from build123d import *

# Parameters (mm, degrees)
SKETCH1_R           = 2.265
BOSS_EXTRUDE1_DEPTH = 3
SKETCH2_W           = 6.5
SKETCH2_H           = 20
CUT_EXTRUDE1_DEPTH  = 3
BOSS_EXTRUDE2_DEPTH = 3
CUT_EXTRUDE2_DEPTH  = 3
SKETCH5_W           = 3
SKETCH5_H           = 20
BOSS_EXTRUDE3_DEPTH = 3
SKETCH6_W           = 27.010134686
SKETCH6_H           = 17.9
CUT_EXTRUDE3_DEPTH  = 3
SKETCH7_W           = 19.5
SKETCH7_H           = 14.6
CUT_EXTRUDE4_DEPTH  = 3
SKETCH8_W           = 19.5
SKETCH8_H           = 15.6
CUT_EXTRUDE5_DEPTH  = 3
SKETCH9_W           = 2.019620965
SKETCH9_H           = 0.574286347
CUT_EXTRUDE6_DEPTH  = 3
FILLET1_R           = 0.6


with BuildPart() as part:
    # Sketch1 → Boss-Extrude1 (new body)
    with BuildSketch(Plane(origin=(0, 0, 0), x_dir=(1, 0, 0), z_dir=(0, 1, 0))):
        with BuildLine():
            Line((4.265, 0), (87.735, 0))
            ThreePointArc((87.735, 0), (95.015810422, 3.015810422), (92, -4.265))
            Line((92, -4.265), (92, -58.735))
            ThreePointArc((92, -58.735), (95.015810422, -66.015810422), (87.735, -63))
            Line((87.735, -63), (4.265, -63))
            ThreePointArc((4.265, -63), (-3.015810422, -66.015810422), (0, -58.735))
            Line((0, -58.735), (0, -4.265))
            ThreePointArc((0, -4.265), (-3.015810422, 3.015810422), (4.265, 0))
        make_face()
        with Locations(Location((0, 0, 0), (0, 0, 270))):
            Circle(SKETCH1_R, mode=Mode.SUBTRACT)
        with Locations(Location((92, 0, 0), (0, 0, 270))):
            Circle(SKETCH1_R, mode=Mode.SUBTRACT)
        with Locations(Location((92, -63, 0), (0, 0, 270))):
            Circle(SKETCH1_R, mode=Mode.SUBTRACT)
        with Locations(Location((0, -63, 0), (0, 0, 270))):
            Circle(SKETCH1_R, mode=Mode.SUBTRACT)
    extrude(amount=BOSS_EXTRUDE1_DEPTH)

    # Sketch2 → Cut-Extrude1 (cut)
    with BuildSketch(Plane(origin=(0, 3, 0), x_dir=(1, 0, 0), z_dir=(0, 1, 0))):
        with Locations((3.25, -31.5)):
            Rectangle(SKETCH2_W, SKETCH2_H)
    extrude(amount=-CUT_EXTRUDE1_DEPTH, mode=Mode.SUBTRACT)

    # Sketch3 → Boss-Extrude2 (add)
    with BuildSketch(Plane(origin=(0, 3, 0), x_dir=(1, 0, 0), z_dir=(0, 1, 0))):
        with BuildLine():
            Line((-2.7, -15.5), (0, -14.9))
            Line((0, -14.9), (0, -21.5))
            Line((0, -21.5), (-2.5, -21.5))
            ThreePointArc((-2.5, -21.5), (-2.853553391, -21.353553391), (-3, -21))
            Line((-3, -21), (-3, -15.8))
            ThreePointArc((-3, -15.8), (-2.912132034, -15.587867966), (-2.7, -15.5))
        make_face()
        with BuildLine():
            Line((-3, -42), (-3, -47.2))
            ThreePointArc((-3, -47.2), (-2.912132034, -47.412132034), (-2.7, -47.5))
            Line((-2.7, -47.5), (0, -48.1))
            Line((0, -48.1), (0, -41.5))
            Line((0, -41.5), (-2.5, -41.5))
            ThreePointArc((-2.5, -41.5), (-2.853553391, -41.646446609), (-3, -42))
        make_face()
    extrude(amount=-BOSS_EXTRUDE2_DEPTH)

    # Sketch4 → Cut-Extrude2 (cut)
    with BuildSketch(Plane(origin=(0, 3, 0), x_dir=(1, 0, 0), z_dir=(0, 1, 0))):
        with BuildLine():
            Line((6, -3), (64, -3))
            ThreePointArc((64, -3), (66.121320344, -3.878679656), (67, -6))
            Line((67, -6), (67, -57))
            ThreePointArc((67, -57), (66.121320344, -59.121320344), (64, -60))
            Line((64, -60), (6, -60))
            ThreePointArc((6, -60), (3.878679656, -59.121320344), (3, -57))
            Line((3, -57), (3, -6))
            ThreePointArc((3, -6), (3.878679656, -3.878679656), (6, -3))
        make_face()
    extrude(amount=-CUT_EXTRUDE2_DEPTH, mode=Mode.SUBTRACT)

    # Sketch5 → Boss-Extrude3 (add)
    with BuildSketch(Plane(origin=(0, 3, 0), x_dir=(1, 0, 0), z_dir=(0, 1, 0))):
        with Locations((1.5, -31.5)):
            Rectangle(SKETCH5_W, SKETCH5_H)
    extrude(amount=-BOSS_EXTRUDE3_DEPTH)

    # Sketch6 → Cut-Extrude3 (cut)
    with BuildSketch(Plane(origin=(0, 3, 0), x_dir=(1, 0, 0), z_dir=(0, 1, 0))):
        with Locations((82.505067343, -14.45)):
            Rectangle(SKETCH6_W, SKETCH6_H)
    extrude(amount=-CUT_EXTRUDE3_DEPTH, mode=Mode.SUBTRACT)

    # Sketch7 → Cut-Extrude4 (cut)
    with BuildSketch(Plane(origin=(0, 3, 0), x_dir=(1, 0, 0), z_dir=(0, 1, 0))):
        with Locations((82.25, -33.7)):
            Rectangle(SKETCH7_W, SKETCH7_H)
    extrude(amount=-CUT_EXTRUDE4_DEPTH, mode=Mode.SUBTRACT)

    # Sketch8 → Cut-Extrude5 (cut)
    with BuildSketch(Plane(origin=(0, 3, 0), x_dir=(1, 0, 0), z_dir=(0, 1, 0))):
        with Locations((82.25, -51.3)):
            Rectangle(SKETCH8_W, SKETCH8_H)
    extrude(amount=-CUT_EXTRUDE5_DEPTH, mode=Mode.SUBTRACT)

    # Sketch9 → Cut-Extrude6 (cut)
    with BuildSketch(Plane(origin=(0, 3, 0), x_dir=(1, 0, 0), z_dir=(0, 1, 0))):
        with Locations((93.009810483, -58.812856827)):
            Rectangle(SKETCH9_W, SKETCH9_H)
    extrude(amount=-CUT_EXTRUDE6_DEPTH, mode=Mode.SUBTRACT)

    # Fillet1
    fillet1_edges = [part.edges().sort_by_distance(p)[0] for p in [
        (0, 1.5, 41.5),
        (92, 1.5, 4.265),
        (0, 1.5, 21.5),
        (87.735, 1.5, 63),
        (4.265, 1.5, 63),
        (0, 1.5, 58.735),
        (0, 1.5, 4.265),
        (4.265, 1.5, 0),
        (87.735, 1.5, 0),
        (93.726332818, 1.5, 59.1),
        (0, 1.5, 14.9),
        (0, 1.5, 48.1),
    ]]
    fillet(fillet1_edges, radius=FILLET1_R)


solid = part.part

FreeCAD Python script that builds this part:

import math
import FreeCAD as App
import Part
import Sketcher
from FreeCAD import Vector
Q = App.Units.Quantity


def edges_at(feature, points):
    """Names of the edges that pass closest to the given points."""
    edges = feature.Shape.Edges
    near = lambda p: min(range(len(edges)), key=lambda i: edges[i].distToShape(Part.Vertex(*p))[0])
    return sorted({f"Edge{near(p) + 1}" for p in points})

doc = App.newDocument("Part")
body = doc.addObject("PartDesign::Body", "Body")

# Sketch on XZ plane
sketch1 = body.newObject("Sketcher::SketchObject", "Sketch")
sketch1.AttachmentSupport = (doc.getObject("XZ_Plane"), [""])
sketch1.MapMode = "FlatFace"
sketch1.addGeometry(Part.LineSegment(Vector(87.735, 0, 0), Vector(4.265, 0, 0)), False)
sketch1.addGeometry(Part.ArcOfCircle(Part.Circle(Vector(0, 0, 0), Vector(0, 0, 1), 4.265), math.radians(90), math.radians(360)), False)
sketch1.addGeometry(Part.LineSegment(Vector(0, 4.265, 0), Vector(0, 58.735, 0)), False)
sketch1.addGeometry(Part.ArcOfCircle(Part.Circle(Vector(0, 63, 0), Vector(0, 0, 1), 4.265), math.radians(0), math.radians(270)), False)
sketch1.addGeometry(Part.LineSegment(Vector(4.265, 63, 0), Vector(87.735, 63, 0)), False)
sketch1.addGeometry(Part.ArcOfCircle(Part.Circle(Vector(92, 63, 0), Vector(0, 0, 1), 4.265), math.radians(-90), math.radians(180)), False)
sketch1.addGeometry(Part.LineSegment(Vector(92, 58.735, 0), Vector(92, 4.265, 0)), False)
sketch1.addGeometry(Part.ArcOfCircle(Part.Circle(Vector(92, 0, 0), Vector(0, 0, 1), 4.265), math.radians(180), math.radians(450)), False)
sketch1.addGeometry(Part.Circle(Vector(92, 63, 0), Vector(0, 0, 1), 2.265), False)
sketch1.addGeometry(Part.Circle(Vector(0, 63, 0), Vector(0, 0, 1), 2.265), False)
sketch1.addGeometry(Part.Circle(Vector(92, 0, 0), Vector(0, 0, 1), 2.265), False)
sketch1.addGeometry(Part.Circle(Vector(0, 0, 0), Vector(0, 0, 1), 2.265), False)
sketch1.addConstraint(Sketcher.Constraint("Coincident", 0, 2, 1, 2))
sketch1.addConstraint(Sketcher.Constraint("Coincident", 1, 1, 2, 1))
sketch1.addConstraint(Sketcher.Constraint("Coincident", 2, 2, 3, 2))
sketch1.addConstraint(Sketcher.Constraint("Coincident", 3, 1, 4, 1))
sketch1.addConstraint(Sketcher.Constraint("Coincident", 4, 2, 5, 2))
sketch1.addConstraint(Sketcher.Constraint("Coincident", 5, 1, 6, 1))
sketch1.addConstraint(Sketcher.Constraint("Coincident", 6, 2, 7, 2))
sketch1.addConstraint(Sketcher.Constraint("Coincident", 7, 1, 0, 1))
sketch1.addConstraint(Sketcher.Constraint("Horizontal", 0))
sketch1.addConstraint(Sketcher.Constraint("Vertical", 2))
sketch1.addConstraint(Sketcher.Constraint("Horizontal", 4))
sketch1.addConstraint(Sketcher.Constraint("Vertical", 6))
sketch1.addConstraint(Sketcher.Constraint("Coincident", 1, 3, -1, 1))
sketch1.addConstraint(Sketcher.Constraint("Coincident", 11, 3, -1, 1))
sketch1.addConstraint(Sketcher.Constraint("Coincident", 8, 3, 5, 3))
sketch1.addConstraint(Sketcher.Constraint("Coincident", 9, 3, 3, 3))
sketch1.addConstraint(Sketcher.Constraint("Coincident", 10, 3, 7, 3))
sketch1.addConstraint(Sketcher.Constraint("Equal", 1, 3))
sketch1.addConstraint(Sketcher.Constraint("Equal", 3, 5))
sketch1.addConstraint(Sketcher.Constraint("Equal", 5, 7))
sketch1.addConstraint(Sketcher.Constraint("Equal", 8, 9))
sketch1.addConstraint(Sketcher.Constraint("Equal", 9, 10))
sketch1.addConstraint(Sketcher.Constraint("Equal", 10, 11))
sketch1.addConstraint(Sketcher.Constraint("PointOnObject", 3, 3, -2))
sketch1.addConstraint(Sketcher.Constraint("PointOnObject", 7, 3, -1))
sketch1.addConstraint(Sketcher.Constraint("PointOnObject", 0, 2, -1))
sketch1.addConstraint(Sketcher.Constraint("PointOnObject", 1, 1, -2))
sketch1.addConstraint(Sketcher.Constraint("Horizontal", 3, 3, 5, 3))
sketch1.addConstraint(Sketcher.Constraint("Horizontal", 9, 3, 3, 1))
sketch1.addConstraint(Sketcher.Constraint("Vertical", 5, 3, 7, 3))
sketch1.addConstraint(Sketcher.Constraint("Vertical", 10, 3, 5, 1))
sketch1.addConstraint(Sketcher.Constraint("Diameter", 8, Q("4.53 mm")))
sketch1.addConstraint(Sketcher.Constraint("DistanceY", -1, 1, 3, 3, Q("63 mm")))
sketch1.addConstraint(Sketcher.Constraint("DistanceX", -1, 1, 5, 3, Q("92 mm")))
sketch1.addConstraint(Sketcher.Constraint("Radius", 1, Q("4.265 mm")))
pad1 = body.newObject("PartDesign::Pad", "Pad")
pad1.Profile = sketch1
pad1.Length = 3
pad1.Reversed = True

# Sketch on XZ plane
sketch2 = body.newObject("Sketcher::SketchObject", "Sketch001")
sketch2.AttachmentSupport = (doc.getObject("XZ_Plane"), [""])
sketch2.MapMode = "FlatFace"
sketch2.AttachmentOffset = App.Placement(Vector(0, 0, -3), App.Rotation())
sketch2.addGeometry(Part.LineSegment(Vector(0, 21.5, 0), Vector(0, 41.5, 0)), False)
sketch2.addGeometry(Part.LineSegment(Vector(0, 41.5, 0), Vector(6.5, 41.5, 0)), False)
sketch2.addGeometry(Part.LineSegment(Vector(6.5, 41.5, 0), Vector(6.5, 21.5, 0)), False)
sketch2.addGeometry(Part.LineSegment(Vector(6.5, 21.5, 0), Vector(0, 21.5, 0)), False)
sketch2.addConstraint(Sketcher.Constraint("Coincident", 0, 2, 1, 1))
sketch2.addConstraint(Sketcher.Constraint("Coincident", 1, 2, 2, 1))
sketch2.addConstraint(Sketcher.Constraint("Coincident", 2, 2, 3, 1))
sketch2.addConstraint(Sketcher.Constraint("Coincident", 3, 2, 0, 1))
sketch2.addConstraint(Sketcher.Constraint("Vertical", 0))
sketch2.addConstraint(Sketcher.Constraint("Horizontal", 1))
sketch2.addConstraint(Sketcher.Constraint("Vertical", 2))
sketch2.addConstraint(Sketcher.Constraint("Horizontal", 3))
sketch2.addConstraint(Sketcher.Constraint("PointOnObject", 0, 2, -2))
sketch2.addConstraint(Sketcher.Constraint("DistanceY", 0, 1, 0, 2, Q("20 mm")))
sketch2.addConstraint(Sketcher.Constraint("DistanceX", 1, 1, 1, 2, Q("6.5 mm")))
sketch2.addConstraint(Sketcher.Constraint("DistanceY", -1, 1, 0, 2, Q("41.5 mm")))
pocket1 = body.newObject("PartDesign::Pocket", "Pocket")
pocket1.Profile = sketch2
pocket1.Length = 3
pocket1.Reversed = True

# Sketch on XZ plane
sketch3 = body.newObject("Sketcher::SketchObject", "Sketch002")
sketch3.AttachmentSupport = (doc.getObject("XZ_Plane"), [""])
sketch3.MapMode = "FlatFace"
sketch3.AttachmentOffset = App.Placement(Vector(0, 0, -3), App.Rotation())
sketch3.addGeometry(Part.LineSegment(Vector(0, 14.9, 0), Vector(-2.7, 15.5, 0)), False)
sketch3.addGeometry(Part.ArcOfCircle(Part.Circle(Vector(-2.7, 15.8, 0), Vector(0, 0, 1), 0.3), math.radians(-180), math.radians(-90)), False)
sketch3.addGeometry(Part.LineSegment(Vector(-3, 15.8, 0), Vector(-3, 21, 0)), False)
sketch3.addGeometry(Part.ArcOfCircle(Part.Circle(Vector(-2.5, 21, 0), Vector(0, 0, 1), 0.5), math.radians(90), math.radians(180)), False)
sketch3.addGeometry(Part.LineSegment(Vector(-2.5, 21.5, 0), Vector(0, 21.5, 0)), False)
sketch3.addGeometry(Part.LineSegment(Vector(0, 21.5, 0), Vector(0, 14.9, 0)), False)
sketch3.addGeometry(Part.LineSegment(Vector(-3, 42, 0), Vector(-3, 47.2, 0)), False)
sketch3.addGeometry(Part.ArcOfCircle(Part.Circle(Vector(-2.7, 47.2, 0), Vector(0, 0, 1), 0.3), math.radians(90), math.radians(180)), False)
sketch3.addGeometry(Part.LineSegment(Vector(-2.7, 47.5, 0), Vector(0, 48.1, 0)), False)
sketch3.addGeometry(Part.LineSegment(Vector(0, 48.1, 0), Vector(0, 41.5, 0)), False)
sketch3.addGeometry(Part.LineSegment(Vector(0, 41.5, 0), Vector(-2.5, 41.5, 0)), False)
sketch3.addGeometry(Part.ArcOfCircle(Part.Circle(Vector(-2.5, 42, 0), Vector(0, 0, 1), 0.5), math.radians(180), math.radians(270)), False)
sketch3.addConstraint(Sketcher.Constraint("Coincident", 0, 2, 1, 2))
sketch3.addConstraint(Sketcher.Constraint("Tangent", 1, 1, 2, 1))
sketch3.addConstraint(Sketcher.Constraint("Tangent", 2, 2, 3, 2))
sketch3.addConstraint(Sketcher.Constraint("Tangent", 3, 1, 4, 1))
sketch3.addConstraint(Sketcher.Constraint("Coincident", 4, 2, 5, 1))
sketch3.addConstraint(Sketcher.Constraint("Coincident", 5, 2, 0, 1))
sketch3.addConstraint(Sketcher.Constraint("Tangent", 6, 2, 7, 2))
sketch3.addConstraint(Sketcher.Constraint("Coincident", 7, 1, 8, 1))
sketch3.addConstraint(Sketcher.Constraint("Coincident", 8, 2, 9, 1))
sketch3.addConstraint(Sketcher.Constraint("Coincident", 9, 2, 10, 1))
sketch3.addConstraint(Sketcher.Constraint("Tangent", 10, 2, 11, 2))
sketch3.addConstraint(Sketcher.Constraint("Tangent", 11, 1, 6, 1))
sketch3.addConstraint(Sketcher.Constraint("Vertical", 2))
sketch3.addConstraint(Sketcher.Constraint("Horizontal", 4))
sketch3.addConstraint(Sketcher.Constraint("Vertical", 5))
sketch3.addConstraint(Sketcher.Constraint("Vertical", 6))
sketch3.addConstraint(Sketcher.Constraint("Vertical", 9))
sketch3.addConstraint(Sketcher.Constraint("Horizontal", 10))
sketch3.addConstraint(Sketcher.Constraint("Equal", 1, 7))
sketch3.addConstraint(Sketcher.Constraint("Equal", 3, 11))
sketch3.addConstraint(Sketcher.Constraint("PointOnObject", 4, 2, -2))
sketch3.addConstraint(Sketcher.Constraint("PointOnObject", 8, 2, -2))
sketch3.addConstraint(Sketcher.Constraint("Vertical", 1, 3, 7, 3))
sketch3.addConstraint(Sketcher.Constraint("Vertical", 7, 3, 0, 2))
sketch3.addConstraint(Sketcher.Constraint("Vertical", 0, 2, 7, 1))
sketch3.addConstraint(Sketcher.Constraint("Equal", 2, 6))
sketch3.addConstraint(Sketcher.Constraint("Equal", 5, 9))
sketch3.addConstraint(Sketcher.Constraint("Radius", 1, Q("0.3 mm")))
sketch3.addConstraint(Sketcher.Constraint("Radius", 3, Q("0.5 mm")))
sketch3.addConstraint(Sketcher.Constraint("DistanceX", 4, 1, 4, 2, Q("2.5 mm")))
sketch3.addConstraint(Sketcher.Constraint("DistanceY", 2, 1, 2, 2, Q("5.2 mm")))
sketch3.addConstraint(Sketcher.Constraint("DistanceY", 5, 2, 5, 1, Q("6.6 mm")))
sketch3.addConstraint(Sketcher.Constraint("DistanceY", -1, 1, 3, 3, Q("21 mm")))
sketch3.addConstraint(Sketcher.Constraint("DistanceY", -1, 1, 11, 3, Q("42 mm")))
pad2 = body.newObject("PartDesign::Pad", "Pad001")
pad2.Profile = sketch3
pad2.Length = 3

# Sketch on XZ plane
sketch4 = body.newObject("Sketcher::SketchObject", "Sketch003")
sketch4.AttachmentSupport = (doc.getObject("XZ_Plane"), [""])
sketch4.MapMode = "FlatFace"
sketch4.AttachmentOffset = App.Placement(Vector(0, 0, -3), App.Rotation())
sketch4.addGeometry(Part.LineSegment(Vector(64, 3, 0), Vector(6, 3, 0)), False)
sketch4.addGeometry(Part.ArcOfCircle(Part.Circle(Vector(6, 6, 0), Vector(0, 0, 1), 3), math.radians(180), math.radians(270)), False)
sketch4.addGeometry(Part.LineSegment(Vector(3, 6, 0), Vector(3, 57, 0)), False)
sketch4.addGeometry(Part.ArcOfCircle(Part.Circle(Vector(6, 57, 0), Vector(0, 0, 1), 3), math.radians(90), math.radians(180)), False)
sketch4.addGeometry(Part.LineSegment(Vector(6, 60, 0), Vector(64, 60, 0)), False)
sketch4.addGeometry(Part.ArcOfCircle(Part.Circle(Vector(64, 57, 0), Vector(0, 0, 1), 3), math.radians(0), math.radians(90)), False)
sketch4.addGeometry(Part.LineSegment(Vector(67, 57, 0), Vector(67, 6, 0)), False)
sketch4.addGeometry(Part.ArcOfCircle(Part.Circle(Vector(64, 6, 0), Vector(0, 0, 1), 3), math.radians(-90), math.radians(0)), False)
sketch4.addConstraint(Sketcher.Constraint("Tangent", 0, 2, 1, 2))
sketch4.addConstraint(Sketcher.Constraint("Tangent", 1, 1, 2, 1))
sketch4.addConstraint(Sketcher.Constraint("Tangent", 2, 2, 3, 2))
sketch4.addConstraint(Sketcher.Constraint("Tangent", 3, 1, 4, 1))
sketch4.addConstraint(Sketcher.Constraint("Tangent", 4, 2, 5, 2))
sketch4.addConstraint(Sketcher.Constraint("Tangent", 5, 1, 6, 1))
sketch4.addConstraint(Sketcher.Constraint("Tangent", 6, 2, 7, 2))
sketch4.addConstraint(Sketcher.Constraint("Tangent", 7, 1, 0, 1))
sketch4.addConstraint(Sketcher.Constraint("Horizontal", 0))
sketch4.addConstraint(Sketcher.Constraint("Vertical", 2))
sketch4.addConstraint(Sketcher.Constraint("Horizontal", 4))
sketch4.addConstraint(Sketcher.Constraint("Vertical", 6))
sketch4.addConstraint(Sketcher.Constraint("Equal", 1, 3))
sketch4.addConstraint(Sketcher.Constraint("Equal", 3, 5))
sketch4.addConstraint(Sketcher.Constraint("Equal", 5, 7))
sketch4.addConstraint(Sketcher.Constraint("Radius", 1, Q("3 mm")))
sketch4.addConstraint(Sketcher.Constraint("DistanceX", 0, 2, 0, 1, Q("58 mm")))
sketch4.addConstraint(Sketcher.Constraint("DistanceY", 2, 1, 2, 2, Q("51 mm")))
sketch4.addConstraint(Sketcher.Constraint("DistanceX", -1, 1, 1, 3, Q("6 mm")))
sketch4.addConstraint(Sketcher.Constraint("DistanceY", -1, 1, 1, 3, Q("6 mm")))
pocket2 = body.newObject("PartDesign::Pocket", "Pocket001")
pocket2.Profile = sketch4
pocket2.Length = 3
pocket2.Reversed = True

# Sketch on XZ plane
sketch5 = body.newObject("Sketcher::SketchObject", "Sketch004")
sketch5.AttachmentSupport = (doc.getObject("XZ_Plane"), [""])
sketch5.MapMode = "FlatFace"
sketch5.AttachmentOffset = App.Placement(Vector(0, 0, -3), App.Rotation())
sketch5.addGeometry(Part.LineSegment(Vector(0, 21.5, 0), Vector(0, 41.5, 0)), False)
sketch5.addGeometry(Part.LineSegment(Vector(0, 41.5, 0), Vector(3, 41.5, 0)), False)
sketch5.addGeometry(Part.LineSegment(Vector(3, 41.5, 0), Vector(3, 21.5, 0)), False)
sketch5.addGeometry(Part.LineSegment(Vector(3, 21.5, 0), Vector(0, 21.5, 0)), False)
sketch5.addConstraint(Sketcher.Constraint("Coincident", 0, 2, 1, 1))
sketch5.addConstraint(Sketcher.Constraint("Coincident", 1, 2, 2, 1))
sketch5.addConstraint(Sketcher.Constraint("Coincident", 2, 2, 3, 1))
sketch5.addConstraint(Sketcher.Constraint("Coincident", 3, 2, 0, 1))
sketch5.addConstraint(Sketcher.Constraint("Vertical", 0))
sketch5.addConstraint(Sketcher.Constraint("Horizontal", 1))
sketch5.addConstraint(Sketcher.Constraint("Vertical", 2))
sketch5.addConstraint(Sketcher.Constraint("Horizontal", 3))
sketch5.addConstraint(Sketcher.Constraint("PointOnObject", 0, 2, -2))
sketch5.addConstraint(Sketcher.Constraint("DistanceX", 1, 1, 1, 2, Q("3 mm")))
sketch5.addConstraint(Sketcher.Constraint("DistanceY", 0, 1, 0, 2, Q("20 mm")))
sketch5.addConstraint(Sketcher.Constraint("DistanceY", -1, 1, 0, 2, Q("41.5 mm")))
pad3 = body.newObject("PartDesign::Pad", "Pad002")
pad3.Profile = sketch5
pad3.Length = 3

# Sketch on XZ plane
sketch6 = body.newObject("Sketcher::SketchObject", "Sketch005")
sketch6.AttachmentSupport = (doc.getObject("XZ_Plane"), [""])
sketch6.MapMode = "FlatFace"
sketch6.AttachmentOffset = App.Placement(Vector(0, 0, -3), App.Rotation())
sketch6.addGeometry(Part.LineSegment(Vector(69, 5.5, 0), Vector(69, 23.4, 0)), False)
sketch6.addGeometry(Part.LineSegment(Vector(69, 23.4, 0), Vector(96.010135, 23.4, 0)), False)
sketch6.addGeometry(Part.LineSegment(Vector(96.010135, 23.4, 0), Vector(96.010135, 5.5, 0)), False)
sketch6.addGeometry(Part.LineSegment(Vector(96.010135, 5.5, 0), Vector(69, 5.5, 0)), False)
sketch6.addConstraint(Sketcher.Constraint("Coincident", 0, 2, 1, 1))
sketch6.addConstraint(Sketcher.Constraint("Coincident", 1, 2, 2, 1))
sketch6.addConstraint(Sketcher.Constraint("Coincident", 2, 2, 3, 1))
sketch6.addConstraint(Sketcher.Constraint("Coincident", 3, 2, 0, 1))
sketch6.addConstraint(Sketcher.Constraint("Vertical", 0))
sketch6.addConstraint(Sketcher.Constraint("Horizontal", 1))
sketch6.addConstraint(Sketcher.Constraint("Vertical", 2))
sketch6.addConstraint(Sketcher.Constraint("Horizontal", 3))
sketch6.addConstraint(Sketcher.Constraint("DistanceY", 0, 1, 0, 2, Q("17.9 mm")))
sketch6.addConstraint(Sketcher.Constraint("DistanceX", -1, 1, 0, 2, Q("69 mm")))
sketch6.addConstraint(Sketcher.Constraint("DistanceY", -1, 1, 0, 2, Q("23.4 mm")))
sketch6.addConstraint(Sketcher.Constraint("DistanceX", 1, 1, 1, 2, Q("27.010135 mm")))
pocket3 = body.newObject("PartDesign::Pocket", "Pocket002")
pocket3.Profile = sketch6
pocket3.Length = 3
pocket3.Reversed = True

# Sketch on XZ plane
sketch7 = body.newObject("Sketcher::SketchObject", "Sketch006")
sketch7.AttachmentSupport = (doc.getObject("XZ_Plane"), [""])
sketch7.MapMode = "FlatFace"
sketch7.AttachmentOffset = App.Placement(Vector(0, 0, -3), App.Rotation())
sketch7.addGeometry(Part.LineSegment(Vector(72.5, 26.4, 0), Vector(72.5, 41, 0)), False)
sketch7.addGeometry(Part.LineSegment(Vector(72.5, 41, 0), Vector(92, 41, 0)), False)
sketch7.addGeometry(Part.LineSegment(Vector(92, 41, 0), Vector(92, 26.4, 0)), False)
sketch7.addGeometry(Part.LineSegment(Vector(92, 26.4, 0), Vector(72.5, 26.4, 0)), False)
sketch7.addConstraint(Sketcher.Constraint("Coincident", 0, 2, 1, 1))
sketch7.addConstraint(Sketcher.Constraint("Coincident", 1, 2, 2, 1))
sketch7.addConstraint(Sketcher.Constraint("Coincident", 2, 2, 3, 1))
sketch7.addConstraint(Sketcher.Constraint("Coincident", 3, 2, 0, 1))
sketch7.addConstraint(Sketcher.Constraint("Vertical", 0))
sketch7.addConstraint(Sketcher.Constraint("Horizontal", 1))
sketch7.addConstraint(Sketcher.Constraint("Vertical", 2))
sketch7.addConstraint(Sketcher.Constraint("Horizontal", 3))
sketch7.addConstraint(Sketcher.Constraint("DistanceX", 1, 1, 1, 2, Q("19.5 mm")))
sketch7.addConstraint(Sketcher.Constraint("DistanceY", 0, 1, 0, 2, Q("14.6 mm")))
sketch7.addConstraint(Sketcher.Constraint("DistanceY", -1, 1, 0, 2, Q("41 mm")))
sketch7.addConstraint(Sketcher.Constraint("DistanceX", -1, 1, 1, 2, Q("92 mm")))
pocket4 = body.newObject("PartDesign::Pocket", "Pocket003")
pocket4.Profile = sketch7
pocket4.Length = 3
pocket4.Reversed = True

# Sketch on XZ plane
sketch8 = body.newObject("Sketcher::SketchObject", "Sketch007")
sketch8.AttachmentSupport = (doc.getObject("XZ_Plane"), [""])
sketch8.MapMode = "FlatFace"
sketch8.AttachmentOffset = App.Placement(Vector(0, 0, -3), App.Rotation())
sketch8.addGeometry(Part.LineSegment(Vector(72.5, 43.5, 0), Vector(72.5, 59.1, 0)), False)
sketch8.addGeometry(Part.LineSegment(Vector(72.5, 59.1, 0), Vector(92, 59.1, 0)), False)
sketch8.addGeometry(Part.LineSegment(Vector(92, 59.1, 0), Vector(92, 43.5, 0)), False)
sketch8.addGeometry(Part.LineSegment(Vector(92, 43.5, 0), Vector(72.5, 43.5, 0)), False)
sketch8.addConstraint(Sketcher.Constraint("Coincident", 0, 2, 1, 1))
sketch8.addConstraint(Sketcher.Constraint("Coincident", 1, 2, 2, 1))
sketch8.addConstraint(Sketcher.Constraint("Coincident", 2, 2, 3, 1))
sketch8.addConstraint(Sketcher.Constraint("Coincident", 3, 2, 0, 1))
sketch8.addConstraint(Sketcher.Constraint("Vertical", 0))
sketch8.addConstraint(Sketcher.Constraint("Horizontal", 1))
sketch8.addConstraint(Sketcher.Constraint("Vertical", 2))
sketch8.addConstraint(Sketcher.Constraint("Horizontal", 3))
sketch8.addConstraint(Sketcher.Constraint("DistanceX", 1, 1, 1, 2, Q("19.5 mm")))
sketch8.addConstraint(Sketcher.Constraint("DistanceY", 0, 1, 0, 2, Q("15.6 mm")))
sketch8.addConstraint(Sketcher.Constraint("DistanceX", -1, 1, 1, 2, Q("92 mm")))
sketch8.addConstraint(Sketcher.Constraint("DistanceY", -1, 1, 0, 2, Q("59.1 mm")))
pocket5 = body.newObject("PartDesign::Pocket", "Pocket004")
pocket5.Profile = sketch8
pocket5.Length = 3
pocket5.Reversed = True

# Sketch on XZ plane
sketch9 = body.newObject("Sketcher::SketchObject", "Sketch008")
sketch9.AttachmentSupport = (doc.getObject("XZ_Plane"), [""])
sketch9.MapMode = "FlatFace"
sketch9.AttachmentOffset = App.Placement(Vector(0, 0, -3), App.Rotation())
sketch9.addGeometry(Part.LineSegment(Vector(92, 58.525714, 0), Vector(92, 59.1, 0)), False)
sketch9.addGeometry(Part.LineSegment(Vector(92, 59.1, 0), Vector(94.019621, 59.1, 0)), False)
sketch9.addGeometry(Part.LineSegment(Vector(94.019621, 59.1, 0), Vector(94.019621, 58.525714, 0)), False)
sketch9.addGeometry(Part.LineSegment(Vector(94.019621, 58.525714, 0), Vector(92, 58.525714, 0)), False)
sketch9.addConstraint(Sketcher.Constraint("Coincident", 0, 2, 1, 1))
sketch9.addConstraint(Sketcher.Constraint("Coincident", 1, 2, 2, 1))
sketch9.addConstraint(Sketcher.Constraint("Coincident", 2, 2, 3, 1))
sketch9.addConstraint(Sketcher.Constraint("Coincident", 3, 2, 0, 1))
sketch9.addConstraint(Sketcher.Constraint("Vertical", 0))
sketch9.addConstraint(Sketcher.Constraint("Horizontal", 1))
sketch9.addConstraint(Sketcher.Constraint("Vertical", 2))
sketch9.addConstraint(Sketcher.Constraint("Horizontal", 3))
sketch9.addConstraint(Sketcher.Constraint("DistanceX", -1, 1, 0, 2, Q("92 mm")))
sketch9.addConstraint(Sketcher.Constraint("DistanceY", -1, 1, 0, 2, Q("59.1 mm")))
sketch9.addConstraint(Sketcher.Constraint("DistanceX", 1, 1, 1, 2, Q("2.019621 mm")))
sketch9.addConstraint(Sketcher.Constraint("DistanceY", 0, 1, 0, 2, Q("0.574286 mm")))
pocket6 = body.newObject("PartDesign::Pocket", "Pocket005")
pocket6.Profile = sketch9
pocket6.Length = 3
pocket6.Reversed = True
doc.recompute()

fillet = body.newObject("PartDesign::Fillet", "Fillet")
fillet.Base = (pocket6, edges_at(pocket6, [
    (0, 1.5, 41.5),
    (92, 1.5, 4.265),
    (0, 1.5, 21.5),
    (87.735, 1.5, 63),
    (4.265, 1.5, 63),
    (0, 1.5, 58.735),
    (0, 1.5, 4.265),
    (4.265, 1.5, 0),
    (87.735, 1.5, 0),
    (93.726, 1.5, 59.1),
    (0, 1.5, 14.9),
    (0, 1.5, 48.1),
]))
fillet.Radius = 0.6

doc.recompute()
